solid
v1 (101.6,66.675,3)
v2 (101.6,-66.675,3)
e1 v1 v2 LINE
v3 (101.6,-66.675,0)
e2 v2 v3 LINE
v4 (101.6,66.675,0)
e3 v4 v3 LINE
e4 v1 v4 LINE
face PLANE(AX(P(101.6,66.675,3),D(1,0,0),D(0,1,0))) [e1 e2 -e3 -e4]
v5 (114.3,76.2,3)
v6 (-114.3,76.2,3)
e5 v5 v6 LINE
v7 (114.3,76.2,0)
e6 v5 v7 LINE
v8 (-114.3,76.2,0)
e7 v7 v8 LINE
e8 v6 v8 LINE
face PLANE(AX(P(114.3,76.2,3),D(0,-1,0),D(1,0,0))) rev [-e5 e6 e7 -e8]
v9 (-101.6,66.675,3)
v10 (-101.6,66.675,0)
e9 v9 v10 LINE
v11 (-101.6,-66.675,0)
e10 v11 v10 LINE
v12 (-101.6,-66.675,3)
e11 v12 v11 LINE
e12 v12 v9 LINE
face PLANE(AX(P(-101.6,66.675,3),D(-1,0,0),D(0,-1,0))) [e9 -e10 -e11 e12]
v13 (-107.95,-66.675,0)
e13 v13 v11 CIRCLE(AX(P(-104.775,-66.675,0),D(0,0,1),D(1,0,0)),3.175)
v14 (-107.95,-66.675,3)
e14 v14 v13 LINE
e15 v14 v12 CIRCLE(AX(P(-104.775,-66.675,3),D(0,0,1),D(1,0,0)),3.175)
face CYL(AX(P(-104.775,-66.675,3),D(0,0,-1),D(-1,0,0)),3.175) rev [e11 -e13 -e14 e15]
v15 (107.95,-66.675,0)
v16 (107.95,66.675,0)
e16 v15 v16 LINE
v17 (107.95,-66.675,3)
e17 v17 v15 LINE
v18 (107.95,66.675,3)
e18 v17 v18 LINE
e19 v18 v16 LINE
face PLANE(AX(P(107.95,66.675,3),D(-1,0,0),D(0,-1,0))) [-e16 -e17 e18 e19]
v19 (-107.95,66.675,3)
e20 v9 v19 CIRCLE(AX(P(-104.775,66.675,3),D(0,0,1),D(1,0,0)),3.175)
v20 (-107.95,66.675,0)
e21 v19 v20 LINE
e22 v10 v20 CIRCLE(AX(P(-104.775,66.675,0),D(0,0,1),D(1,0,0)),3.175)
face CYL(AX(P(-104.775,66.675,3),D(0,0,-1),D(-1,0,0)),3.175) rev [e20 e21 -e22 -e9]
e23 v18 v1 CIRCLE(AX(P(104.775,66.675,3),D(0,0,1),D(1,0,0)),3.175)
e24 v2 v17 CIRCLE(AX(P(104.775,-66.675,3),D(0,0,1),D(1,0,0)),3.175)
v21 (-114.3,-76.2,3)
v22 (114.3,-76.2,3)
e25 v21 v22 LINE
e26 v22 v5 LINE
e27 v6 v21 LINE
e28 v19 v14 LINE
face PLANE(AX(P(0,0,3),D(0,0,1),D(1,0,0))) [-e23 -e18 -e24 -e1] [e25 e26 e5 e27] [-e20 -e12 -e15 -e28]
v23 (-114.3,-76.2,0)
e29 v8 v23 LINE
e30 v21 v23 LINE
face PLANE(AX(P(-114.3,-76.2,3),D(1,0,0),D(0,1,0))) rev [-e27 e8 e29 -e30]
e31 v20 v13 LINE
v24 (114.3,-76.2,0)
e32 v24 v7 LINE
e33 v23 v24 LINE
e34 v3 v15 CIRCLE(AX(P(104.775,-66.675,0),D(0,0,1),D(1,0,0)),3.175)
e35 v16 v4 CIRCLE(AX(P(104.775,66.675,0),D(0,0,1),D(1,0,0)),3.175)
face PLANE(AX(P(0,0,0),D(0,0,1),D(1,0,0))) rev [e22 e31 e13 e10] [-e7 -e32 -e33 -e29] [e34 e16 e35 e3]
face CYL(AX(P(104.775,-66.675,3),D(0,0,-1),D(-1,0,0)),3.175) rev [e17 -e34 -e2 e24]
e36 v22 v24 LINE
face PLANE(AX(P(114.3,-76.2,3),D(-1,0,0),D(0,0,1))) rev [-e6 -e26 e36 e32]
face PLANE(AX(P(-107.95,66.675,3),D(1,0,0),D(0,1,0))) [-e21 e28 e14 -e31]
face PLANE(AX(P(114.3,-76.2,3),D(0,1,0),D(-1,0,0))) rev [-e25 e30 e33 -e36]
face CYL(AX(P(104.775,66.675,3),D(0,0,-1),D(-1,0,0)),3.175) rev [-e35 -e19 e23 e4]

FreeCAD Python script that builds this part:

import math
import FreeCAD as App
import Part
import Sketcher
Q = App.Units.Quantity


def add_polygon(sketch, points):
    """Adds a closed chain of lines whose ends are joined by coincident constraints."""
    first, n = sketch.GeometryCount, len(points)
    for a, b in zip(points, points[1:] + points[:1]):
        sketch.addGeometry(Part.LineSegment(App.Vector(*a, 0), App.Vector(*b, 0)), False)
    for i in range(n):
        sketch.addConstraint(Sketcher.Constraint("Coincident", first + i, 2, first + (i + 1) % n, 1))

doc = App.newDocument("Part")
body = doc.addObject("PartDesign::Body", "Body")

sketch1 = doc.addObject("Sketcher::SketchObject", "Sketch")
body.addObject(sketch1)
sketch1.AttachmentSupport = (doc.XY_Plane, [""])
sketch1.MapMode = "FlatFace"
add_polygon(sketch1, [(-114.3, 76.2), (-114.3, -76.2), (114.3, -76.2), (114.3, 76.2)])
sketch1.addGeometry(Part.ArcOfCircle(Part.Circle(App.Vector(-104.8, 66.7, 0), App.Vector(0, 0, 1), 3.2), math.radians(0), math.radians(180)), False)
sketch1.addGeometry(Part.LineSegment(App.Vector(-101.6, 66.7, 0), App.Vector(-101.6, -66.7, 0)), False)
sketch1.addGeometry(Part.ArcOfCircle(Part.Circle(App.Vector(-104.8, -66.7, 0), App.Vector(0, 0, 1), 3.2), math.radians(180), math.radians(360)), False)
sketch1.addGeometry(Part.LineSegment(App.Vector(-108, -66.7, 0), App.Vector(-108, 66.7, 0)), False)
sketch1.addGeometry(Part.ArcOfCircle(Part.Circle(App.Vector(104.8, 66.7, 0), App.Vector(0, 0, 1), 3.2), math.radians(0), math.radians(180)), False)
sketch1.addGeometry(Part.LineSegment(App.Vector(108, 66.7, 0), App.Vector(108, -66.7, 0)), False)
sketch1.addGeometry(Part.ArcOfCircle(Part.Circle(App.Vector(104.8, -66.7, 0), App.Vector(0, 0, 1), 3.2), math.radians(180), math.radians(360)), False)
sketch1.addGeometry(Part.LineSegment(App.Vector(101.6, -66.7, 0), App.Vector(101.6, 66.7, 0)), False)
sketch1.addConstraint(Sketcher.Constraint("Tangent", 4, 1, 5, 1))
sketch1.addConstraint(Sketcher.Constraint("Tangent", 5, 2, 6, 2))
sketch1.addConstraint(Sketcher.Constraint("Tangent", 6, 1, 7, 1))
sketch1.addConstraint(Sketcher.Constraint("Tangent", 7, 2, 4, 2))
sketch1.addConstraint(Sketcher.Constraint("Tangent", 8, 1, 9, 1))
sketch1.addConstraint(Sketcher.Constraint("Tangent", 9, 2, 10, 2))
sketch1.addConstraint(Sketcher.Constraint("Tangent", 10, 1, 11, 1))
sketch1.addConstraint(Sketcher.Constraint("Tangent", 11, 2, 8, 2))
sketch1.addConstraint(Sketcher.Constraint("Vertical", 0))
sketch1.addConstraint(Sketcher.Constraint("Horizontal", 1))
sketch1.addConstraint(Sketcher.Constraint("Vertical", 2))
sketch1.addConstraint(Sketcher.Constraint("Horizontal", 3))
sketch1.addConstraint(Sketcher.Constraint("Vertical", 5))
sketch1.addConstraint(Sketcher.Constraint("Vertical", 7))
sketch1.addConstraint(Sketcher.Constraint("Vertical", 9))
sketch1.addConstraint(Sketcher.Constraint("Vertical", 11))
sketch1.addConstraint(Sketcher.Constraint("Equal", 6, 8))
sketch1.addConstraint(Sketcher.Constraint("Symmetric", 6, 3, 8, 3, -1, 1))
sketch1.addConstraint(Sketcher.Constraint("Symmetric", 0, 2, 2, 2, -1, 1))
sketch1.addConstraint(Sketcher.Constraint("Horizontal", 4, 3, 8, 3))
sketch1.addConstraint(Sketcher.Constraint("Horizontal", 6, 3, 10, 3))
sketch1.addConstraint(Sketcher.Constraint("DistanceX", 1, 1, 1, 2, Q("9 in")))
sketch1.addConstraint(Sketcher.Constraint("DistanceY", 0, 2, 0, 1, Q("6 in")))
sketch1.addConstraint(Sketcher.Constraint("DistanceX", 4, 1, -1, 1, Q("4 in")))
sketch1.addConstraint(Sketcher.Constraint("Radius", 4, Q("0.125 in")))
sketch1.addConstraint(Sketcher.Constraint("DistanceY", 5, 2, 5, 1, Q("5.25 in")))
pad1 = doc.addObject("PartDesign::Pad", "Pad")
body.addObject(pad1)
pad1.Profile = sketch1
pad1.Length = 3

doc.recompute()
